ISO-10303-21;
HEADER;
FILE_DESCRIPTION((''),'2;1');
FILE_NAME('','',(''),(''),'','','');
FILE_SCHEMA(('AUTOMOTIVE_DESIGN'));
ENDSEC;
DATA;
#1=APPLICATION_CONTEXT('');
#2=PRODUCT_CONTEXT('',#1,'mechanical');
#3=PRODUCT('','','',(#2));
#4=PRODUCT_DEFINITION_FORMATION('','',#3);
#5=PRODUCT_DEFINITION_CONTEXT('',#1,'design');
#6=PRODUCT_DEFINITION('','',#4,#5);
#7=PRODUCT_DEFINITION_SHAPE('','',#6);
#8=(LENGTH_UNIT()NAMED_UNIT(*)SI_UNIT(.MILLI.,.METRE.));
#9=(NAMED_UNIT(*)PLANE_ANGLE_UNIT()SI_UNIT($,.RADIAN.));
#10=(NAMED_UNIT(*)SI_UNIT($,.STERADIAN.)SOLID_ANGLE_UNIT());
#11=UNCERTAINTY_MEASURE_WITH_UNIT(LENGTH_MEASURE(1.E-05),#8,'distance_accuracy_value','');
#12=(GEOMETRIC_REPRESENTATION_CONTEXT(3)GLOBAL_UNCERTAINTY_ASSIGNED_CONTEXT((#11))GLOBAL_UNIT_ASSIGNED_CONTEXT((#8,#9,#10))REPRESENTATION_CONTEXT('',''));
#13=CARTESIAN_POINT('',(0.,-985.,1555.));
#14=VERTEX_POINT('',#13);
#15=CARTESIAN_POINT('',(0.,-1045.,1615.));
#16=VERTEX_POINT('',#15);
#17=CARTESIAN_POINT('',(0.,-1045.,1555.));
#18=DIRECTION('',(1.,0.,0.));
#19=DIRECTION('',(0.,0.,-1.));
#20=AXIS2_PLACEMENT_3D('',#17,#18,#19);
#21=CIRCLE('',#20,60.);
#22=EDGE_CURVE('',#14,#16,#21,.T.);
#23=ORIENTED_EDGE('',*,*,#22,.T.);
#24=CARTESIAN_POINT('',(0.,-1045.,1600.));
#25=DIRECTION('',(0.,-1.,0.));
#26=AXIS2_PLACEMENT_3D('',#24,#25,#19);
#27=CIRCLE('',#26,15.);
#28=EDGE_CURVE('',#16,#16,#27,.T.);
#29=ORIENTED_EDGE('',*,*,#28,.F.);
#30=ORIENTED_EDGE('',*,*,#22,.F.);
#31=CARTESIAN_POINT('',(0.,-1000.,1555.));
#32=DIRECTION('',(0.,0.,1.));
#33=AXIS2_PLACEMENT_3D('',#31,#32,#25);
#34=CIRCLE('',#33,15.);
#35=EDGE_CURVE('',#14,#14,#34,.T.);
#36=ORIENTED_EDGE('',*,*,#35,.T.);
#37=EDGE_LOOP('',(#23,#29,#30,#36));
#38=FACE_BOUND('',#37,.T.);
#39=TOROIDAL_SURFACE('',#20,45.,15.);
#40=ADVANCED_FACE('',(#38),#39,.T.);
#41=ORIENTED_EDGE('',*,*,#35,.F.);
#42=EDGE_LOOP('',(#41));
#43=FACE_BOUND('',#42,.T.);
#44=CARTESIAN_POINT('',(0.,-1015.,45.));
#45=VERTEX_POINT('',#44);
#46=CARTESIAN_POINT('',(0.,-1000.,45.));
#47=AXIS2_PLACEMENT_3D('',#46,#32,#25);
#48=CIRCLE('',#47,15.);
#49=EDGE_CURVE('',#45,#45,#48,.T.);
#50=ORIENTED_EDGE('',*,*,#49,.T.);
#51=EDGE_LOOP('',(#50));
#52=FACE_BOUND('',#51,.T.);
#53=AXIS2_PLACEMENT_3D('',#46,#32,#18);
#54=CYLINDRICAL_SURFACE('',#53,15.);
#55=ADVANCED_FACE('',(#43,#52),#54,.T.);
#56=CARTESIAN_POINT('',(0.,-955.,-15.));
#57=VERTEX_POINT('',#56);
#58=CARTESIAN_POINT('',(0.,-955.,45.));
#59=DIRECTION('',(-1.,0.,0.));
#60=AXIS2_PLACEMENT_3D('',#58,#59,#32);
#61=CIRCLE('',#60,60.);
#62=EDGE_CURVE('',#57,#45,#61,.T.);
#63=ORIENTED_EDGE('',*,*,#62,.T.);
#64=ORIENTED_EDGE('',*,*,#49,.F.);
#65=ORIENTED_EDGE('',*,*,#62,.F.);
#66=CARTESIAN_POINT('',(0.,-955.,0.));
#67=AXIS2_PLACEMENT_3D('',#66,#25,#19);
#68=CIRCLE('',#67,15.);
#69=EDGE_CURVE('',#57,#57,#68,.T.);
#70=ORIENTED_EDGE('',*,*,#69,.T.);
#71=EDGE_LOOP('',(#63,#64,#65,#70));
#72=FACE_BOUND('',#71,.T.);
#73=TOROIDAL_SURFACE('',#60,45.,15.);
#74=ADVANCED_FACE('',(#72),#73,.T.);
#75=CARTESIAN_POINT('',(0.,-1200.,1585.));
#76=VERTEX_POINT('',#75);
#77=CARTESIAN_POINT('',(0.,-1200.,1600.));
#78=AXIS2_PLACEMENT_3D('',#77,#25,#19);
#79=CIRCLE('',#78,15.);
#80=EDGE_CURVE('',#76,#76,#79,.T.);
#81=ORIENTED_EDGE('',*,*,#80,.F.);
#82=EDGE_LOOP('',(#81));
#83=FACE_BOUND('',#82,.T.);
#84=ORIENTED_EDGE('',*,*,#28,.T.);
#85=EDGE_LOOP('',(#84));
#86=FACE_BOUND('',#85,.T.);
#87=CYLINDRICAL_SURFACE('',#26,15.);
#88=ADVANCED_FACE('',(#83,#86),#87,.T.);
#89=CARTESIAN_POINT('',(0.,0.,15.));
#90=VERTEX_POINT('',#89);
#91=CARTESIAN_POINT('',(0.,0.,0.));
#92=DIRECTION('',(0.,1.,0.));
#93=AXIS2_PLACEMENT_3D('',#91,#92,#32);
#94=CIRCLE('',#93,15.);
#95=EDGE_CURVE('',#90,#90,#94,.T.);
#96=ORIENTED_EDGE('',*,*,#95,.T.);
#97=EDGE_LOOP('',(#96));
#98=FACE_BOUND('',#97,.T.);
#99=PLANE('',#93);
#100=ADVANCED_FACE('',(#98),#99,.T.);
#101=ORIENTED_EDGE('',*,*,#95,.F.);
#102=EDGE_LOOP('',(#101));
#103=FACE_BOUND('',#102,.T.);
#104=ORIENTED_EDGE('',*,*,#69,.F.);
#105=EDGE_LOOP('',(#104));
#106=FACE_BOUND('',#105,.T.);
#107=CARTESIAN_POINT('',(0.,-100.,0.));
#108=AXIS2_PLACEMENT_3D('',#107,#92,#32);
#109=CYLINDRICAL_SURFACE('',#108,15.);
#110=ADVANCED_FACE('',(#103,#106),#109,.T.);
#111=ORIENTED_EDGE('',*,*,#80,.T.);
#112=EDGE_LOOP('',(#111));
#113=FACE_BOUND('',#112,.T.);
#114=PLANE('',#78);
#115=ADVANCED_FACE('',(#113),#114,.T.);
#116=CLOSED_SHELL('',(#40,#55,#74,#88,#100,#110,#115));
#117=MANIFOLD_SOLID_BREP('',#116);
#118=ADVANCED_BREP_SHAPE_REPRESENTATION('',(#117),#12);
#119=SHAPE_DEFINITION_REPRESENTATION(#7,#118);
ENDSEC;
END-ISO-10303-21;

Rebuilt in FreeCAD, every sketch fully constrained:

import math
import FreeCAD as App
import Part
import Sketcher

doc = App.newDocument("Part")
body = doc.addObject("PartDesign::Body", "Body")

# Sketch on XZ plane
sketch1 = body.newObject("Sketcher::SketchObject", "Sketch")
sketch1.AttachmentSupport = (doc.getObject("XZ_Plane"), [""])
sketch1.MapMode = "FlatFace"
sketch1.addGeometry(Part.Circle(App.Vector(0, 0, 0), App.Vector(0, 0, 1), 15), False)
sketch1.addConstraint([
    Sketcher.Constraint("Coincident", 0, 3, -1, 1),
    Sketcher.Constraint("Diameter", 0, 30.0),
])
pad1 = body.newObject("PartDesign::Pad", "Pad")
pad1.Profile = sketch1
pad1.Length = 100

# Sketch on XZ plane
sketch2 = body.newObject("Sketcher::SketchObject", "Sketch001")
sketch2.AttachmentSupport = (doc.getObject("XZ_Plane"), [""])
sketch2.MapMode = "FlatFace"
sketch2.AttachmentOffset = App.Placement(App.Vector(0, 0, 100), App.Rotation())
sketch2.addGeometry(Part.Circle(App.Vector(0, 0, 0), App.Vector(0, 0, 1), 15), False)
sketch2.addConstraint([
    Sketcher.Constraint("Coincident", 0, 3, -1, 1),
    Sketcher.Constraint("Diameter", 0, 30.0),
])

# Sketch on YZ plane
sketch3 = body.newObject("Sketcher::SketchObject", "Sketch002")
sketch3.AttachmentSupport = (doc.getObject("YZ_Plane"), [""])
sketch3.MapMode = "FlatFace"
sketch3.addGeometry([
    Part.LineSegment(App.Vector(-100, 0, 0), App.Vector(-955, 0, 0)),  # 0
    Part.ArcOfCircle(Part.Circle(App.Vector(-955, 45, 0), App.Vector(0, 0, 1), 45), math.radians(-180), math.radians(-90)),  # 1
    Part.LineSegment(App.Vector(-1000, 45, 0), App.Vector(-1000, 1555, 0)),  # 2
    Part.ArcOfCircle(Part.Circle(App.Vector(-1045, 1555, 0), App.Vector(0, 0, 1), 45), math.radians(0), math.radians(90)),  # 3
    Part.LineSegment(App.Vector(-1045, 1600, 0), App.Vector(-1200, 1600, 0)),  # 4
], False)
sketch3.addConstraint([
    Sketcher.Constraint("Tangent", 0, 2, 1, 2),
    Sketcher.Constraint("Tangent", 1, 1, 2, 1),
    Sketcher.Constraint("Tangent", 2, 2, 3, 1),
    Sketcher.Constraint("Tangent", 3, 2, 4, 1),
    Sketcher.Constraint("Horizontal", 0),
    Sketcher.Constraint("Vertical", 2),
    Sketcher.Constraint("Horizontal", 4),
    Sketcher.Constraint("Equal", 1, 3),
    Sketcher.Constraint("PointOnObject", 0, 1, -1),
    Sketcher.Constraint("Radius", 1, 45.0),
    Sketcher.Constraint("DistanceX", 0, 2, 0, 1, 855.0),
    Sketcher.Constraint("DistanceX", 4, 2, 4, 1, 155.0),
    Sketcher.Constraint("DistanceY", 2, 1, 2, 2, 1510.0),
    Sketcher.Constraint("DistanceX", 1, 3, -1, 1, 955.0),
])
doc.recompute()

additivepipe = body.newObject("PartDesign::AdditivePipe", "AdditivePipe")
additivepipe.Profile = sketch2
additivepipe.Spine = (sketch3, ["Edge1", "Edge2", "Edge3", "Edge4", "Edge5"])

doc.recompute()
